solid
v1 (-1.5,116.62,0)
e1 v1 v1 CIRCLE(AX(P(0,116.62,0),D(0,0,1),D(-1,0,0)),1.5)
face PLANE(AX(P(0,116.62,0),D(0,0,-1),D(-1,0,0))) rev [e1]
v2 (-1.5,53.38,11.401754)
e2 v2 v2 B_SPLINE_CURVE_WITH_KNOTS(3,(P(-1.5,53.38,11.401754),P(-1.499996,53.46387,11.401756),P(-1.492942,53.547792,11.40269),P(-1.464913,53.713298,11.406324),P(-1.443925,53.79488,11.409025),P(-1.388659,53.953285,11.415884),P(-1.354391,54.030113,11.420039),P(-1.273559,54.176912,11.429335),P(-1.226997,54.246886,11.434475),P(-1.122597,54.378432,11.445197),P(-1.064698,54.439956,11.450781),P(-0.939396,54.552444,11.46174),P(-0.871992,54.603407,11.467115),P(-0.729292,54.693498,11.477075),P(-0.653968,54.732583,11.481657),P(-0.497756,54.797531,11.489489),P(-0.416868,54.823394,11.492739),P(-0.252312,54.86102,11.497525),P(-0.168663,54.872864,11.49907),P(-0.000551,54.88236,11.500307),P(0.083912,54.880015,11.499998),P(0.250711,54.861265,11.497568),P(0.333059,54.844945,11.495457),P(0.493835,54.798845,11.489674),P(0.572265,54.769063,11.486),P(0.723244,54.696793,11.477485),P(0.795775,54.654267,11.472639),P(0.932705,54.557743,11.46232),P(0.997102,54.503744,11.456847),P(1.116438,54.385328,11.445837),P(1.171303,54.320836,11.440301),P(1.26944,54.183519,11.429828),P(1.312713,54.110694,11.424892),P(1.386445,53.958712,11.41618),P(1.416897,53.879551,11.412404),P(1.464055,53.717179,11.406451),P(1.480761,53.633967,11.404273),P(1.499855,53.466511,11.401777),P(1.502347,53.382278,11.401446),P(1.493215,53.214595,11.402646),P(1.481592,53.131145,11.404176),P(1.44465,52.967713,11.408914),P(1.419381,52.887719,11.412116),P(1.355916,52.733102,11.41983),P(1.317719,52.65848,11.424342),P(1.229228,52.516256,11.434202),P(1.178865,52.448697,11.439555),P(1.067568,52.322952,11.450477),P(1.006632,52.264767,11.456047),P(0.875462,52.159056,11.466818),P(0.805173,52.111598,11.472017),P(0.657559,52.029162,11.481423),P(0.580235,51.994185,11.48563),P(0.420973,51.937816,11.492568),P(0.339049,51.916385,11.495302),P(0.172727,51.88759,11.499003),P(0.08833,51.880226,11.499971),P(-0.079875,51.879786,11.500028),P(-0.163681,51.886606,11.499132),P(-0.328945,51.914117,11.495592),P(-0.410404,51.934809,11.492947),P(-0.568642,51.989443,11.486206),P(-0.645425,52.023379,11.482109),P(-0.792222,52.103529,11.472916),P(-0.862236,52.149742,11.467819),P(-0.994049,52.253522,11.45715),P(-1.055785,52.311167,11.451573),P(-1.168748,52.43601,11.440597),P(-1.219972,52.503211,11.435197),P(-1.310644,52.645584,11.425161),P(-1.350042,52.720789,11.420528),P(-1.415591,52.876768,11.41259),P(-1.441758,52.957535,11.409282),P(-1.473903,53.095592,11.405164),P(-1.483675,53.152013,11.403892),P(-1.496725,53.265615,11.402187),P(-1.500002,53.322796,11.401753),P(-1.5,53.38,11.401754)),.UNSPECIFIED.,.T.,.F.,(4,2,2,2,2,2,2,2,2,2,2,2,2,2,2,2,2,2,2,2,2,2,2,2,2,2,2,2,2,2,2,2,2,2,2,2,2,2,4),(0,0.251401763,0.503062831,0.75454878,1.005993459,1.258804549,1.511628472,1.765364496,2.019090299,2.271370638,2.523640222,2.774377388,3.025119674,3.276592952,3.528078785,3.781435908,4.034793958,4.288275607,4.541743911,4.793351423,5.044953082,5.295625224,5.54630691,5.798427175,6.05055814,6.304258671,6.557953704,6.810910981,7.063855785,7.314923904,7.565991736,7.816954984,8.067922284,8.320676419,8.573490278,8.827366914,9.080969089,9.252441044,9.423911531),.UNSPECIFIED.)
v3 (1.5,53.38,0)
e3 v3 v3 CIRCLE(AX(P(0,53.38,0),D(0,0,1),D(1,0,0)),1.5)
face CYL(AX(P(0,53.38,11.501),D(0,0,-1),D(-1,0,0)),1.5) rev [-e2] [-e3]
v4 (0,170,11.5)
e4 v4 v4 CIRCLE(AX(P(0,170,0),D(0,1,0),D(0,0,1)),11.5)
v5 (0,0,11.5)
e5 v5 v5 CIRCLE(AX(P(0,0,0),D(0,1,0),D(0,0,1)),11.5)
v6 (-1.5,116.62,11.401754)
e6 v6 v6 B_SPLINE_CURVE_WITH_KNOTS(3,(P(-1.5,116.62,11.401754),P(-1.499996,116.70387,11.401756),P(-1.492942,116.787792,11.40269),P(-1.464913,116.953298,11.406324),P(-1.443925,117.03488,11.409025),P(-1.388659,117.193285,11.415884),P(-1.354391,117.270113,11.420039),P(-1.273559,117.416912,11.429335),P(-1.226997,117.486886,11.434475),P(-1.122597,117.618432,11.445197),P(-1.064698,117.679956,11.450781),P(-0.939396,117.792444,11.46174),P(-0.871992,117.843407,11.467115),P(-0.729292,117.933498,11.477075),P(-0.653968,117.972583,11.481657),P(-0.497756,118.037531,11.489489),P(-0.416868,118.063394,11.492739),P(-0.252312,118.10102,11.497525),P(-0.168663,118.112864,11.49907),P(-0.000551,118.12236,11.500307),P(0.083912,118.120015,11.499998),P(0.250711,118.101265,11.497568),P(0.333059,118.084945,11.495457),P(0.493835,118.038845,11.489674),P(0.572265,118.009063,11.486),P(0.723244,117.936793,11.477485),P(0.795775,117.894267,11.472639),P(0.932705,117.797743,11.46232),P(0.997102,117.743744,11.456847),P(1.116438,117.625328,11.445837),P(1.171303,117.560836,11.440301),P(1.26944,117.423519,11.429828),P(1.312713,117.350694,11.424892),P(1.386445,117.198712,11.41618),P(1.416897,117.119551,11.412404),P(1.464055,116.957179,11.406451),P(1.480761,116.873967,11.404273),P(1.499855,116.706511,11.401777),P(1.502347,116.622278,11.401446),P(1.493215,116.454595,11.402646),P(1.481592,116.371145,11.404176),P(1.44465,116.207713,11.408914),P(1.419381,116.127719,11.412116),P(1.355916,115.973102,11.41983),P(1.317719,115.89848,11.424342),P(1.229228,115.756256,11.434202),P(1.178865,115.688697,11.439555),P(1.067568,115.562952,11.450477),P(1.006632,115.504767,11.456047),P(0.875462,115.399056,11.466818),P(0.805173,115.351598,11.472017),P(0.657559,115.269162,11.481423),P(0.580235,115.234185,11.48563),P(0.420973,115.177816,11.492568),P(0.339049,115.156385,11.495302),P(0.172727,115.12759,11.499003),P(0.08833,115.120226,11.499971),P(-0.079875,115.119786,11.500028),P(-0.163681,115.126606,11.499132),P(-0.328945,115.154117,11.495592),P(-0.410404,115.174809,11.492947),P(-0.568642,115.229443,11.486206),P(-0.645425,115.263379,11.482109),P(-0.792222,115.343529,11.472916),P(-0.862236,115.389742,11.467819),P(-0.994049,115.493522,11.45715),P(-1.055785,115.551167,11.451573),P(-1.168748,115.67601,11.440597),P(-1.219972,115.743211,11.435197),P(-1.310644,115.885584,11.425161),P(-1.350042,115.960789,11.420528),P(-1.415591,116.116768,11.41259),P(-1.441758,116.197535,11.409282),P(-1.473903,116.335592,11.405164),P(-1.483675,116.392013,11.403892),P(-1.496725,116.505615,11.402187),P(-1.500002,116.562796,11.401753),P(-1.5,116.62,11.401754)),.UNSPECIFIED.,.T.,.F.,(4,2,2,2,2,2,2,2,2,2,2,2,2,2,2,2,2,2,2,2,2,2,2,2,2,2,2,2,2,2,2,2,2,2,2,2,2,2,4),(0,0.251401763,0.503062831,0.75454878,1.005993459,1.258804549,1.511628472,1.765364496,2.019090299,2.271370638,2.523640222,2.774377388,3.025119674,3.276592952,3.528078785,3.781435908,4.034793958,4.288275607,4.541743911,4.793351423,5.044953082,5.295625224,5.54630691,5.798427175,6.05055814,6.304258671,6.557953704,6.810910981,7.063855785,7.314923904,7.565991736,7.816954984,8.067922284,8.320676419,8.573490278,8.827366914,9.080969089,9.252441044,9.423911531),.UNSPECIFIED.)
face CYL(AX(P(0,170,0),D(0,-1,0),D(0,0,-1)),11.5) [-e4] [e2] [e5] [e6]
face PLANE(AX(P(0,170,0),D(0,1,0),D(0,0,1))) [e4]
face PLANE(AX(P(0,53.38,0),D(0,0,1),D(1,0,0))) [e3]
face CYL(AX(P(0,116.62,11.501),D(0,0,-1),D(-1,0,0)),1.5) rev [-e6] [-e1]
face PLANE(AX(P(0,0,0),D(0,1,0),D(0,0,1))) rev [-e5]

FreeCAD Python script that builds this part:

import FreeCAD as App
import Part
import Sketcher
from FreeCAD import Vector

doc = App.newDocument("Part")
body = doc.addObject("PartDesign::Body", "Body")

# Sketch on XZ plane
sketch1 = body.newObject("Sketcher::SketchObject", "Sketch")
sketch1.AttachmentSupport = (doc.getObject("XZ_Plane"), [""])
sketch1.MapMode = "FlatFace"
sketch1.addGeometry(Part.Circle(Vector(0, 0, 0), Vector(0, 0, 1), 12), False)
sketch1.addConstraint(Sketcher.Constraint("Coincident", 0, 3, -1, 1))
sketch1.addConstraint(Sketcher.Constraint("Diameter", 0, 23.0))
pad1 = body.newObject("PartDesign::Pad", "Pad")
pad1.Profile = sketch1
pad1.Length = 170
pad1.Reversed = True

# Sketch on XY plane
sketch2 = body.newObject("Sketcher::SketchObject", "Sketch001")
sketch2.AttachmentSupport = (doc.getObject("XY_Plane"), [""])
sketch2.MapMode = "FlatFace"
sketch2.addGeometry(Part.Circle(Vector(0, 53.4, 0), Vector(0, 0, 1), 1.5), False)
sketch2.addConstraint(Sketcher.Constraint("PointOnObject", 0, 3, -2))
sketch2.addConstraint(Sketcher.Constraint("Diameter", 0, 3.0))
sketch2.addConstraint(Sketcher.Constraint("DistanceY", -1, 1, 0, 3, 53.38))
pocket1 = body.newObject("PartDesign::Pocket", "Pocket")
pocket1.Profile = sketch2
pocket1.Type = "UpToFirst"
pocket1.Reversed = True

# Sketch on XY plane
sketch3 = body.newObject("Sketcher::SketchObject", "Sketch002")
sketch3.AttachmentSupport = (doc.getObject("XY_Plane"), [""])
sketch3.MapMode = "FlatFace"
sketch3.addGeometry(Part.Circle(Vector(0, 116.6, 0), Vector(0, 0, 1), 1.5), False)
sketch3.addConstraint(Sketcher.Constraint("PointOnObject", 0, 3, -2))
sketch3.addConstraint(Sketcher.Constraint("Diameter", 0, 3.0))
sketch3.addConstraint(Sketcher.Constraint("DistanceY", -1, 1, 0, 3, 116.62))
pocket2 = body.newObject("PartDesign::Pocket", "Pocket001")
pocket2.Profile = sketch3
pocket2.Type = "UpToFirst"
pocket2.Reversed = True

doc.recompute()
